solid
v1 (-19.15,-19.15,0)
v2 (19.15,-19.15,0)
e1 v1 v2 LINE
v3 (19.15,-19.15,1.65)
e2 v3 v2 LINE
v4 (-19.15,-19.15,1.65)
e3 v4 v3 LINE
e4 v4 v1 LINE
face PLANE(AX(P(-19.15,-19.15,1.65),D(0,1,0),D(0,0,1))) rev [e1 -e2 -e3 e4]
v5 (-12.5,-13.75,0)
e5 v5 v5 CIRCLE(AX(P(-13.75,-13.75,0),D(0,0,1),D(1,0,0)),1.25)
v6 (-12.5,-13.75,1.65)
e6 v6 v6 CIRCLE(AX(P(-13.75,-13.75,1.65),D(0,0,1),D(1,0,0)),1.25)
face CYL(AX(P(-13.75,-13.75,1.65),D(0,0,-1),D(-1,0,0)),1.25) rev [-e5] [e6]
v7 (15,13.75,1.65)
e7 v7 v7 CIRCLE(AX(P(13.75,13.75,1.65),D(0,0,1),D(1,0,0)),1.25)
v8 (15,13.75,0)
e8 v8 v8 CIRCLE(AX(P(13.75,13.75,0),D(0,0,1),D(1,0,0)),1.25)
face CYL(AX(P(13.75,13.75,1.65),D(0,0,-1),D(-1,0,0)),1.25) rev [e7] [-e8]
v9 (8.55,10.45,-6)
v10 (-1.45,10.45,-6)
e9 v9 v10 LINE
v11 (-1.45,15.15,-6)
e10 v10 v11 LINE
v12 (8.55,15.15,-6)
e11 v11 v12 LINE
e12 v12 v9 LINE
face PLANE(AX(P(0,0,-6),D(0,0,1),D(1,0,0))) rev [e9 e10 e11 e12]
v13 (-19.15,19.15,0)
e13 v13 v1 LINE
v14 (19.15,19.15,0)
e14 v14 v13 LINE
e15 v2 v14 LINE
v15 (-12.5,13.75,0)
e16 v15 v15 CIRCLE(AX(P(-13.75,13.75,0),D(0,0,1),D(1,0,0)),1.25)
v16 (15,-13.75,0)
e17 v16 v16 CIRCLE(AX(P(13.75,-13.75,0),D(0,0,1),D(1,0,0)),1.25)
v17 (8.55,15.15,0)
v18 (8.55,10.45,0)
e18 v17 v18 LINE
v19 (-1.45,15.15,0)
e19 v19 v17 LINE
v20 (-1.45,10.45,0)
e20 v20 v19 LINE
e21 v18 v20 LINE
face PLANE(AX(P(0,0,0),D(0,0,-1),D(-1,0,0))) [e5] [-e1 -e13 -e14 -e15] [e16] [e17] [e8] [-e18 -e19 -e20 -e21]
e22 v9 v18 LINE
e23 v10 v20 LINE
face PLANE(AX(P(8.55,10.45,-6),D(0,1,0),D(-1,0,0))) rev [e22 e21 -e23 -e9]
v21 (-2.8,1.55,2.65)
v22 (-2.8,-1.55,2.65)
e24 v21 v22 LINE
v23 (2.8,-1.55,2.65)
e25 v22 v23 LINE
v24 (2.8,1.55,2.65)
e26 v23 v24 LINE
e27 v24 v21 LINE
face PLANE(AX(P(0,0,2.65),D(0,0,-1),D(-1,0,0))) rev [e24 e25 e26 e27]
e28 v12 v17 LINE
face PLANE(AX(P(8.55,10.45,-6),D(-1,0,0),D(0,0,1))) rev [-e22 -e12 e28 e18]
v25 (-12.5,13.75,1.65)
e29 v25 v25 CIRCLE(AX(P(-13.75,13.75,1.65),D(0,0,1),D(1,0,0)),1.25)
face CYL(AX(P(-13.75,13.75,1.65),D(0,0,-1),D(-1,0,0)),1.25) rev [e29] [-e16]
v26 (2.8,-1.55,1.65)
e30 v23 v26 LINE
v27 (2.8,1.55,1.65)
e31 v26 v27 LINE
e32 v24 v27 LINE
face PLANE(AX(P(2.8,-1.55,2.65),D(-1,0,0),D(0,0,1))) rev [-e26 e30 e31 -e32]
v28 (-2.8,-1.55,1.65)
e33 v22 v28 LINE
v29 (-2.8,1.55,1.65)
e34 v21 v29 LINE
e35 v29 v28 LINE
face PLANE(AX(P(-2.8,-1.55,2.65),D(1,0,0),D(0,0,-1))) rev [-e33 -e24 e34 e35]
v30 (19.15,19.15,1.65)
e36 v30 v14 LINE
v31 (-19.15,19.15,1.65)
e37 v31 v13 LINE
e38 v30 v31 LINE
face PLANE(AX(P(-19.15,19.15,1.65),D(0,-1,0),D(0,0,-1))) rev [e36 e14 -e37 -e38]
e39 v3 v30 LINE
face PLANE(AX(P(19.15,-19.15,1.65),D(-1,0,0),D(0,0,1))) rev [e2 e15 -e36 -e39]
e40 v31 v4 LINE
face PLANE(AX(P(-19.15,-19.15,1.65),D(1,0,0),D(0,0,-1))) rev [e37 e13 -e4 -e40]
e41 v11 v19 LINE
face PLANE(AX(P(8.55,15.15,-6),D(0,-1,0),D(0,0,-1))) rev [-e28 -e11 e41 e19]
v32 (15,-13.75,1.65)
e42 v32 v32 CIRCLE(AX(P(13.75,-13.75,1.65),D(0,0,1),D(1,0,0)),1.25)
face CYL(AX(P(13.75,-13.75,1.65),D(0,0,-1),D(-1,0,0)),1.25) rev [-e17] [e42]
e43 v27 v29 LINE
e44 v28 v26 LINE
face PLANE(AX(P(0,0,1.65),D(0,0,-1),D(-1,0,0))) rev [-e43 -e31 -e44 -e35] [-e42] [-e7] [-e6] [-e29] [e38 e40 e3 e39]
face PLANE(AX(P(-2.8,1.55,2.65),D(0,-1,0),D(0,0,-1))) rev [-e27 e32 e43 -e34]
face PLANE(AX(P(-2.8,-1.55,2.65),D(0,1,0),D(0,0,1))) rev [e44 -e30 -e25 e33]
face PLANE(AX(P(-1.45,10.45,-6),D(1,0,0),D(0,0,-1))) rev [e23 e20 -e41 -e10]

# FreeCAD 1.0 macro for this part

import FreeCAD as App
import Part
import Sketcher

V = App.Vector


def add_polygon(sketch, points):
    """Adds a closed chain of lines whose ends are joined by coincident constraints."""
    first, n = sketch.GeometryCount, len(points)
    for a, b in zip(points, points[1:] + points[:1]):
        sketch.addGeometry(Part.LineSegment(App.Vector(*a, 0), App.Vector(*b, 0)), False)
    for i in range(n):
        sketch.addConstraint(Sketcher.Constraint("Coincident", first + i, 2, first + (i + 1) % n, 1))

doc = App.newDocument("Part")
body = doc.addObject("PartDesign::Body", "Body")

# Sketch on XY plane
sketch1 = doc.addObject("Sketcher::SketchObject", "Sketch")
body.addObject(sketch1)
sketch1.AttachmentSupport = (doc.XY_Plane, [""])
sketch1.MapMode = "FlatFace"
add_polygon(sketch1, [(-19.15, 19.15), (-19.15, -19.15), (19.15, -19.15), (19.15, 19.15)])  # lines 0-3
sketch1.addGeometry(Part.Circle(V(-13.75, -13.75, 0), V(0, 0, 1), 1.25), False)  # 4
sketch1.addGeometry(Part.Circle(V(13.75, -13.75, 0), V(0, 0, 1), 1.25), False)  # 5
sketch1.addGeometry(Part.Circle(V(-13.75, 13.75, 0), V(0, 0, 1), 1.25), False)  # 6
sketch1.addGeometry(Part.Circle(V(13.75, 13.75, 0), V(0, 0, 1), 1.25), False)  # 7
sketch1.addConstraint([
    Sketcher.Constraint("Vertical", 0),
    Sketcher.Constraint("Horizontal", 1),
    Sketcher.Constraint("Vertical", 2),
    Sketcher.Constraint("Horizontal", 3),
    Sketcher.Constraint("Equal", 4, 5),
    Sketcher.Constraint("Equal", 5, 6),
    Sketcher.Constraint("Equal", 6, 7),
    Sketcher.Constraint("Symmetric", 5, 3, 6, 3, -1, 1),
    Sketcher.Constraint("Symmetric", 4, 3, 7, 3, -1, 1),
    Sketcher.Constraint("Symmetric", 0, 2, 2, 2, -1, 1),
    Sketcher.Constraint("Symmetric", 4, 3, 5, 3, -2),
    Sketcher.Constraint("Equal", 3, 0),
    Sketcher.Constraint("Diameter", 4, 2.5),
    Sketcher.Constraint("DistanceX", 1, 1, 1, 2, 38.3),
    Sketcher.Constraint("DistanceX", 4, 3, 5, 3, 27.5),
    Sketcher.Constraint("DistanceY", 4, 3, 6, 3, 27.5),
])
pad1 = doc.addObject("PartDesign::Pad", "Pad")
body.addObject(pad1)
pad1.Profile = sketch1
pad1.Length = 1.65

# Sketch on XY plane
sketch2 = doc.addObject("Sketcher::SketchObject", "Sketch001")
body.addObject(sketch2)
sketch2.AttachmentSupport = (doc.XY_Plane, [""])
sketch2.MapMode = "FlatFace"
sketch2.AttachmentOffset = App.Placement(V(0, 0, 1.65), App.Rotation())
add_polygon(sketch2, [(-2.8, 1.55), (-2.8, -1.55), (2.8, -1.55), (2.8, 1.55)])  # lines 0-3
sketch2.addConstraint([
    Sketcher.Constraint("Vertical", 0),
    Sketcher.Constraint("Horizontal", 1),
    Sketcher.Constraint("Vertical", 2),
    Sketcher.Constraint("Horizontal", 3),
    Sketcher.Constraint("Symmetric", 0, 2, 2, 2, -1, 1),
    Sketcher.Constraint("DistanceX", 1, 1, 1, 2, 5.6),
    Sketcher.Constraint("DistanceY", 0, 2, 0, 1, 3.1),
])
pad2 = doc.addObject("PartDesign::Pad", "Pad001")
body.addObject(pad2)
pad2.Profile = sketch2
pad2.Length = 1

# Sketch on XY plane
sketch3 = doc.addObject("Sketcher::SketchObject", "Sketch002")
body.addObject(sketch3)
sketch3.AttachmentSupport = (doc.XY_Plane, [""])
sketch3.MapMode = "FlatFace"
add_polygon(sketch3, [(8.55, 15.15), (8.55, 10.45), (-1.45, 10.45), (-1.45, 15.15)])  # lines 0-3
sketch3.addConstraint([
    Sketcher.Constraint("Vertical", 0),
    Sketcher.Constraint("Horizontal", 1),
    Sketcher.Constraint("Vertical", 2),
    Sketcher.Constraint("Horizontal", 3),
    Sketcher.Constraint("DistanceX", 1, 2, 1, 1, 10.0),
    Sketcher.Constraint("DistanceY", 0, 2, 0, 1, 4.7),
    Sketcher.Constraint("DistanceX", -1, 1, 0, 2, 8.55),
    Sketcher.Constraint("DistanceY", -1, 1, 0, 2, 10.45),
])
pad3 = doc.addObject("PartDesign::Pad", "Pad002")
body.addObject(pad3)
pad3.Profile = sketch3
pad3.Length = 6
pad3.Reversed = True

doc.recompute()
